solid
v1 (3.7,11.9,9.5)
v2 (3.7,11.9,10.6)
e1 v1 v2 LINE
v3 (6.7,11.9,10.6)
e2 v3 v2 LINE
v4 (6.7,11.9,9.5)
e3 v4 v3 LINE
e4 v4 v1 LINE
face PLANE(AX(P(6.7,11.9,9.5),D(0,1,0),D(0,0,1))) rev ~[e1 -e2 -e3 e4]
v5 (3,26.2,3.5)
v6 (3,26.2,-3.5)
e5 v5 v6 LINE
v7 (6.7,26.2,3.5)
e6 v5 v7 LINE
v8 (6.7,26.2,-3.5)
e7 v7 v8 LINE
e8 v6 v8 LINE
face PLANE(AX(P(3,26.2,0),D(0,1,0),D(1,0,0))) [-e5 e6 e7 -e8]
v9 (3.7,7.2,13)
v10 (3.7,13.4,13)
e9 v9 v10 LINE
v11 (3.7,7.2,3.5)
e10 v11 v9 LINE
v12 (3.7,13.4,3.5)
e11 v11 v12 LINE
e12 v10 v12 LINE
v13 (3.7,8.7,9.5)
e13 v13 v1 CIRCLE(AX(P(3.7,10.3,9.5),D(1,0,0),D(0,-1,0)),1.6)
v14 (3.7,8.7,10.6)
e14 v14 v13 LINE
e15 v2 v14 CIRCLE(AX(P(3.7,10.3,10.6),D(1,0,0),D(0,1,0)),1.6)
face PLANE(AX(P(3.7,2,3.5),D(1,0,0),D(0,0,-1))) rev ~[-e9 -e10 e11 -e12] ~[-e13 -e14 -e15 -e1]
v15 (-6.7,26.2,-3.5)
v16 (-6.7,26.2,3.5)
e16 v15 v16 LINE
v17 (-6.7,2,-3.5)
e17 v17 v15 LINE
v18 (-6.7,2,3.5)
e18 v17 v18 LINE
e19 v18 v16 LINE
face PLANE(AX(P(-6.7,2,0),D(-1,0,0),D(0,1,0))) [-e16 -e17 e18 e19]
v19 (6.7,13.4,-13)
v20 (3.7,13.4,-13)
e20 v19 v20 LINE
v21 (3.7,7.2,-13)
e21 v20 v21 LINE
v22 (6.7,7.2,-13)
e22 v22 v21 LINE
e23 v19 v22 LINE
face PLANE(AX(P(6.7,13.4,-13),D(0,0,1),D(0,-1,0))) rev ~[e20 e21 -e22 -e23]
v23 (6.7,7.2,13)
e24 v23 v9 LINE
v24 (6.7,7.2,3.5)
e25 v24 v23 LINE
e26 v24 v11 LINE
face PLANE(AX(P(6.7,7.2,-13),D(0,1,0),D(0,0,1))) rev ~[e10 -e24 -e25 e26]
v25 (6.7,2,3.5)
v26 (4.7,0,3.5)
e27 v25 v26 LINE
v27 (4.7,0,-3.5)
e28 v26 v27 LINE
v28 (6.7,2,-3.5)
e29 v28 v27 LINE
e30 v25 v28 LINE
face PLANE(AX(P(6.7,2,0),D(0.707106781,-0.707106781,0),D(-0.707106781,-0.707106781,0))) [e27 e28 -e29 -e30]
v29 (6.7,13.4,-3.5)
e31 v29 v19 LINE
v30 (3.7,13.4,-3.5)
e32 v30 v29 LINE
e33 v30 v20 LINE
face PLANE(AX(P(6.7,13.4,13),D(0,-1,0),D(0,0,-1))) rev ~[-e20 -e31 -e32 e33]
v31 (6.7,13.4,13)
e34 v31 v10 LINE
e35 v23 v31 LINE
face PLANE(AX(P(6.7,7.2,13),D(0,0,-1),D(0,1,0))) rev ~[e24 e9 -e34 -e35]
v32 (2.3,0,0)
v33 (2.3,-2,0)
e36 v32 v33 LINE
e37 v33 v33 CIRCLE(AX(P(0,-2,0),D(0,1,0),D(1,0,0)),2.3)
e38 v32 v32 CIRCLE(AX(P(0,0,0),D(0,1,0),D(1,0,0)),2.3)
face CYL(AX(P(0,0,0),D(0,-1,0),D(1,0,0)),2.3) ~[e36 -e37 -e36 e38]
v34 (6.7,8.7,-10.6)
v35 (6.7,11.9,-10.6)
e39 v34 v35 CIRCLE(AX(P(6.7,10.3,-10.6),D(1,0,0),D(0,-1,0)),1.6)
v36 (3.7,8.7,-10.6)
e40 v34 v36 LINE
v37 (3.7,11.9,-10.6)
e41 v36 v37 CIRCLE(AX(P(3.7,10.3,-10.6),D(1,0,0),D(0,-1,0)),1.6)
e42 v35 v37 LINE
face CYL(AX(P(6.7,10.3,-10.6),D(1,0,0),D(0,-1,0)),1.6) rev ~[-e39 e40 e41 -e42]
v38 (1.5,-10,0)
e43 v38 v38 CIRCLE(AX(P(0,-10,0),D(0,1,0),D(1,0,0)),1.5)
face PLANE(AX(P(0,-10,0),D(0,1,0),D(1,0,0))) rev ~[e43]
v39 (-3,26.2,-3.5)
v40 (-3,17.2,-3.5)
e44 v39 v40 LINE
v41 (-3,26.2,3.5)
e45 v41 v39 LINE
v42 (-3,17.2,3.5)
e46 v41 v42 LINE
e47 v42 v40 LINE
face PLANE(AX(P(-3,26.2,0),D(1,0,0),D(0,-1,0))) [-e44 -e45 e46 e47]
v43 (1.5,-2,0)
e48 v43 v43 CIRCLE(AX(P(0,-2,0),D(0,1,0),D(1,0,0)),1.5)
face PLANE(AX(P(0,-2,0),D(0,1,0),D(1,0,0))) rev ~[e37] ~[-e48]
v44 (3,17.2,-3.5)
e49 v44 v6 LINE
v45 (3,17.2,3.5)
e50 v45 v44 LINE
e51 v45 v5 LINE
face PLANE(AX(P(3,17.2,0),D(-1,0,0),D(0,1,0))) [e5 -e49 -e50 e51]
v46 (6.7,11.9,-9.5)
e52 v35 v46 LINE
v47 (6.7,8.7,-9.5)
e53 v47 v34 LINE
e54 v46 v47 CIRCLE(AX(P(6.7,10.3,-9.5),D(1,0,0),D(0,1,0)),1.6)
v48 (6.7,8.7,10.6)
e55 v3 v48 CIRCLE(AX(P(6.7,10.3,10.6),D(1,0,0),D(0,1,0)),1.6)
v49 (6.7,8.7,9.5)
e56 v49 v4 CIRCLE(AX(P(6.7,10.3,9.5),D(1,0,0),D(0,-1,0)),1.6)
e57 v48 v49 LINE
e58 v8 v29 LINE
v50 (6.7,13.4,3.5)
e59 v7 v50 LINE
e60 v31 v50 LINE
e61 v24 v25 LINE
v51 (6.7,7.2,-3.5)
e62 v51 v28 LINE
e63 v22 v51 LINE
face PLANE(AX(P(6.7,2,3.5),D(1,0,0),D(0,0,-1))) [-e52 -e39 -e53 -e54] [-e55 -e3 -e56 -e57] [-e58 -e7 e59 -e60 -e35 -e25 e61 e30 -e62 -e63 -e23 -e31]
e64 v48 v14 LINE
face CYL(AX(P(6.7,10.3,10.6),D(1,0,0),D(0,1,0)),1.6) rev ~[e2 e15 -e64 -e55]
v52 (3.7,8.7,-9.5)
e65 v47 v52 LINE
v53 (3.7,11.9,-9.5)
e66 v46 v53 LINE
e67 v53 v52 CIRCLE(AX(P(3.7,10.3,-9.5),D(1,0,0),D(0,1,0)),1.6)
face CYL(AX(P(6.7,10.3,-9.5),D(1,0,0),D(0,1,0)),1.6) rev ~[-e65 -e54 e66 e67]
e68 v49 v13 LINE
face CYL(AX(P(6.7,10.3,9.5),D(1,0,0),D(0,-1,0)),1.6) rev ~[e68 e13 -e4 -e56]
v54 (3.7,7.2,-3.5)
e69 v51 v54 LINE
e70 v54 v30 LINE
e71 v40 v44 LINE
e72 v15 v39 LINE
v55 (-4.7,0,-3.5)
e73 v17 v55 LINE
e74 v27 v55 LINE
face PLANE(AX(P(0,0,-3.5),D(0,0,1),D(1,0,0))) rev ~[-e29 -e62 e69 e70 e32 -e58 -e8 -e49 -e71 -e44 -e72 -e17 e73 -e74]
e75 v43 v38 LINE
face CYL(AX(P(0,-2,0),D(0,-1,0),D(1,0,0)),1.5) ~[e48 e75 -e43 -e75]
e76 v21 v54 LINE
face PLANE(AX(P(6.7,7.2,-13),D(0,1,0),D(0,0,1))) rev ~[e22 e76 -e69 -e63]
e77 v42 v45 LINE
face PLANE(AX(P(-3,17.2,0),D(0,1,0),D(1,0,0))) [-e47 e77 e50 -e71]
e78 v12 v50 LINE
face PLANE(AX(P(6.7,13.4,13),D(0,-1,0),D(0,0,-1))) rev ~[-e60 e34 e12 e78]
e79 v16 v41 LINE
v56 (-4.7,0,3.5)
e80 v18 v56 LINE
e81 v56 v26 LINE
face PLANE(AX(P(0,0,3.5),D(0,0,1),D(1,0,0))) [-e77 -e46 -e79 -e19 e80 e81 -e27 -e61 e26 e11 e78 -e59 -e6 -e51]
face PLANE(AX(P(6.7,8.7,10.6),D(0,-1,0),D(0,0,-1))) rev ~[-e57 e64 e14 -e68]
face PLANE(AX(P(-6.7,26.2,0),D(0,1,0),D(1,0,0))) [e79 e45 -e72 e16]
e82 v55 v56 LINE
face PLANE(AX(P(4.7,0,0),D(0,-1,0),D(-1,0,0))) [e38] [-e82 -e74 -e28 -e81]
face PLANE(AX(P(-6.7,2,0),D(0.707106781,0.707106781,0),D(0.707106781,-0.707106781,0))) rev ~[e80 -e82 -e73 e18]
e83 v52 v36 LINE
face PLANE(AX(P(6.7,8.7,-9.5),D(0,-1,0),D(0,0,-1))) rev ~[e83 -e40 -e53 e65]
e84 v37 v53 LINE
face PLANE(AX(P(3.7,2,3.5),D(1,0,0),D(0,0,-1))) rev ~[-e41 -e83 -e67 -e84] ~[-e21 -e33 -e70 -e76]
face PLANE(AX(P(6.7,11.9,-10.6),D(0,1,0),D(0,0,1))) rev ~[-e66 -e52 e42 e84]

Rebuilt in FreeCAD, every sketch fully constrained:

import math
import FreeCAD as App
import Part
import Sketcher

doc = App.newDocument("Part")
body = doc.addObject("PartDesign::Body", "Body")

sketch1 = doc.addObject("Sketcher::SketchObject", "Sketch")
body.addObject(sketch1)
sketch1.AttachmentSupport = (doc.XY_Plane, [""])
sketch1.MapMode = "FlatFace"
sketch1.addGeometry(Part.LineSegment(App.Vector(-3, 26.2, 0), App.Vector(-6.7, 26.2, 0)), False)
sketch1.addGeometry(Part.LineSegment(App.Vector(-6.7, 26.2, 0), App.Vector(-6.7, 2, 0)), False)
sketch1.addGeometry(Part.LineSegment(App.Vector(-6.7, 2, 0), App.Vector(-4.7, 0, 0)), False)
sketch1.addGeometry(Part.LineSegment(App.Vector(-4.7, 0, 0), App.Vector(4.7, 0, 0)), False)
sketch1.addGeometry(Part.LineSegment(App.Vector(4.7, 0, 0), App.Vector(6.7, 2, 0)), False)
sketch1.addGeometry(Part.LineSegment(App.Vector(6.7, 2, 0), App.Vector(6.7, 26.2, 0)), False)
sketch1.addGeometry(Part.LineSegment(App.Vector(6.7, 26.2, 0), App.Vector(3, 26.2, 0)), False)
sketch1.addGeometry(Part.LineSegment(App.Vector(3, 26.2, 0), App.Vector(3, 17.2, 0)), False)
sketch1.addGeometry(Part.LineSegment(App.Vector(3, 17.2, 0), App.Vector(-3, 17.2, 0)), False)
sketch1.addGeometry(Part.LineSegment(App.Vector(-3, 17.2, 0), App.Vector(-3, 26.2, 0)), False)
sketch1.addConstraint(Sketcher.Constraint("Coincident", 0, 2, 1, 1))
sketch1.addConstraint(Sketcher.Constraint("Coincident", 1, 2, 2, 1))
sketch1.addConstraint(Sketcher.Constraint("Coincident", 2, 2, 3, 1))
sketch1.addConstraint(Sketcher.Constraint("Coincident", 3, 2, 4, 1))
sketch1.addConstraint(Sketcher.Constraint("Coincident", 4, 2, 5, 1))
sketch1.addConstraint(Sketcher.Constraint("Coincident", 5, 2, 6, 1))
sketch1.addConstraint(Sketcher.Constraint("Coincident", 6, 2, 7, 1))
sketch1.addConstraint(Sketcher.Constraint("Coincident", 7, 2, 8, 1))
sketch1.addConstraint(Sketcher.Constraint("Coincident", 8, 2, 9, 1))
sketch1.addConstraint(Sketcher.Constraint("Coincident", 9, 2, 0, 1))
sketch1.addConstraint(Sketcher.Constraint("Horizontal", 0))
sketch1.addConstraint(Sketcher.Constraint("Vertical", 1))
sketch1.addConstraint(Sketcher.Constraint("Horizontal", 3))
sketch1.addConstraint(Sketcher.Constraint("Vertical", 5))
sketch1.addConstraint(Sketcher.Constraint("Horizontal", 6))
sketch1.addConstraint(Sketcher.Constraint("Vertical", 7))
sketch1.addConstraint(Sketcher.Constraint("Horizontal", 8))
sketch1.addConstraint(Sketcher.Constraint("Vertical", 9))
sketch1.addConstraint(Sketcher.Constraint("Symmetric", 2, 2, 3, 2, -1, 1))
sketch1.addConstraint(Sketcher.Constraint("Symmetric", 1, 2, 4, 2, -2))
sketch1.addConstraint(Sketcher.Constraint("Symmetric", 6, 2, 9, 2, -2))
sketch1.addConstraint(Sketcher.Constraint("Perpendicular", 2, 4))
sketch1.addConstraint(Sketcher.Constraint("DistanceX", 8, 2, 8, 1, 6.0))
sketch1.addConstraint(Sketcher.Constraint("DistanceY", 7, 2, 7, 1, 9.0))
sketch1.addConstraint(Sketcher.Constraint("DistanceY", -1, 1, 1, 2, 2.0))
sketch1.addConstraint(Sketcher.Constraint("DistanceY", -1, 1, 0, 2, 26.2))
sketch1.addConstraint(Sketcher.Constraint("DistanceX", 1, 2, 4, 2, 13.4))
pad1 = doc.addObject("PartDesign::Pad", "Pad")
body.addObject(pad1)
pad1.Profile = sketch1
pad1.Length = 7
pad1.Midplane = True

sketch2 = doc.addObject("Sketcher::SketchObject", "Sketch001")
body.addObject(sketch2)
sketch2.AttachmentSupport = (doc.XY_Plane, [""])
sketch2.MapMode = "FlatFace"
sketch2.addGeometry(Part.LineSegment(App.Vector(2.3, 0, 0), App.Vector(0, 0, 0)), False)
sketch2.addGeometry(Part.LineSegment(App.Vector(0, 0, 0), App.Vector(0, -10, 0)), False)
sketch2.addGeometry(Part.LineSegment(App.Vector(0, -10, 0), App.Vector(1.5, -10, 0)), False)
sketch2.addGeometry(Part.LineSegment(App.Vector(1.5, -10, 0), App.Vector(1.5, -2, 0)), False)
sketch2.addGeometry(Part.LineSegment(App.Vector(1.5, -2, 0), App.Vector(2.3, -2, 0)), False)
sketch2.addGeometry(Part.LineSegment(App.Vector(2.3, -2, 0), App.Vector(2.3, 0, 0)), False)
sketch2.addConstraint(Sketcher.Constraint("Coincident", 0, 2, 1, 1))
sketch2.addConstraint(Sketcher.Constraint("Coincident", 1, 2, 2, 1))
sketch2.addConstraint(Sketcher.Constraint("Coincident", 2, 2, 3, 1))
sketch2.addConstraint(Sketcher.Constraint("Coincident", 3, 2, 4, 1))
sketch2.addConstraint(Sketcher.Constraint("Coincident", 4, 2, 5, 1))
sketch2.addConstraint(Sketcher.Constraint("Coincident", 5, 2, 0, 1))
sketch2.addConstraint(Sketcher.Constraint("Horizontal", 0))
sketch2.addConstraint(Sketcher.Constraint("Vertical", 1))
sketch2.addConstraint(Sketcher.Constraint("Horizontal", 2))
sketch2.addConstraint(Sketcher.Constraint("Vertical", 3))
sketch2.addConstraint(Sketcher.Constraint("Horizontal", 4))
sketch2.addConstraint(Sketcher.Constraint("Vertical", 5))
sketch2.addConstraint(Sketcher.Constraint("Coincident", 0, 2, -1, 1))
sketch2.addConstraint(Sketcher.Constraint("DistanceY", 1, 2, 1, 1, 10.0))
sketch2.addConstraint(Sketcher.Constraint("DistanceY", 5, 1, 5, 2, 2.0))
sketch2.addConstraint(Sketcher.Constraint("DistanceX", 0, 2, 0, 1, 2.3))
sketch2.addConstraint(Sketcher.Constraint("DistanceX", 2, 1, 2, 2, 1.5))
revolution = doc.addObject("PartDesign::Revolution", "Revolution")
body.addObject(revolution)
revolution.Profile = sketch2
revolution.ReferenceAxis = (sketch2, ["V_Axis"])
revolution.Angle = 360

sketch3 = doc.addObject("Sketcher::SketchObject", "Sketch002")
body.addObject(sketch3)
sketch3.AttachmentSupport = (doc.YZ_Plane, [""])
sketch3.MapMode = "FlatFace"
sketch3.AttachmentOffset = App.Placement(App.Vector(0, 0, 6.7), App.Rotation())
sketch3.addGeometry(Part.LineSegment(App.Vector(13.4, -13, 0), App.Vector(13.4, 13, 0)), False)
sketch3.addGeometry(Part.LineSegment(App.Vector(13.4, 13, 0), App.Vector(7.2, 13, 0)), False)
sketch3.addGeometry(Part.LineSegment(App.Vector(7.2, 13, 0), App.Vector(7.2, -13, 0)), False)
sketch3.addGeometry(Part.LineSegment(App.Vector(7.2, -13, 0), App.Vector(13.4, -13, 0)), False)
sketch3.addGeometry(Part.LineSegment(App.Vector(8.7, 9.5, 0), App.Vector(8.7, 10.6, 0)), False)
sketch3.addGeometry(Part.ArcOfCircle(Part.Circle(App.Vector(10.3, 10.6, 0), App.Vector(0, 0, 1), 1.6), math.radians(0), math.radians(180)), False)
sketch3.addGeometry(Part.LineSegment(App.Vector(11.9, 10.6, 0), App.Vector(11.9, 9.5, 0)), False)
sketch3.addGeometry(Part.ArcOfCircle(Part.Circle(App.Vector(10.3, 9.5, 0), App.Vector(0, 0, 1), 1.6), math.radians(180), math.radians(360)), False)
sketch3.addGeometry(Part.LineSegment(App.Vector(8.7, -10.6, 0), App.Vector(8.7, -9.5, 0)), False)
sketch3.addGeometry(Part.ArcOfCircle(Part.Circle(App.Vector(10.3, -9.5, 0), App.Vector(0, 0, 1), 1.6), math.radians(0), math.radians(180)), False)
sketch3.addGeometry(Part.LineSegment(App.Vector(11.9, -9.5, 0), App.Vector(11.9, -10.6, 0)), False)
sketch3.addGeometry(Part.ArcOfCircle(Part.Circle(App.Vector(10.3, -10.6, 0), App.Vector(0, 0, 1), 1.6), math.radians(180), math.radians(360)), False)
sketch3.addConstraint(Sketcher.Constraint("Coincident", 0, 2, 1, 1))
sketch3.addConstraint(Sketcher.Constraint("Coincident", 1, 2, 2, 1))
sketch3.addConstraint(Sketcher.Constraint("Coincident", 2, 2, 3, 1))
sketch3.addConstraint(Sketcher.Constraint("Coincident", 3, 2, 0, 1))
sketch3.addConstraint(Sketcher.Constraint("Tangent", 4, 2, 5, 2))
sketch3.addConstraint(Sketcher.Constraint("Tangent", 5, 1, 6, 1))
sketch3.addConstraint(Sketcher.Constraint("Tangent", 6, 2, 7, 2))
sketch3.addConstraint(Sketcher.Constraint("Tangent", 7, 1, 4, 1))
sketch3.addConstraint(Sketcher.Constraint("Tangent", 8, 2, 9, 2))
sketch3.addConstraint(Sketcher.Constraint("Tangent", 9, 1, 10, 1))
sketch3.addConstraint(Sketcher.Constraint("Tangent", 10, 2, 11, 2))
sketch3.addConstraint(Sketcher.Constraint("Tangent", 11, 1, 8, 1))
sketch3.addConstraint(Sketcher.Constraint("Vertical", 0))
sketch3.addConstraint(Sketcher.Constraint("Horizontal", 1))
sketch3.addConstraint(Sketcher.Constraint("Vertical", 2))
sketch3.addConstraint(Sketcher.Constraint("Horizontal", 3))
sketch3.addConstraint(Sketcher.Constraint("Vertical", 4))
sketch3.addConstraint(Sketcher.Constraint("Vertical", 6))
sketch3.addConstraint(Sketcher.Constraint("Vertical", 8))
sketch3.addConstraint(Sketcher.Constraint("Vertical", 10))
sketch3.addConstraint(Sketcher.Constraint("Equal", 7, 9))
sketch3.addConstraint(Sketcher.Constraint("Symmetric", 7, 3, 9, 3, -1))
sketch3.addConstraint(Sketcher.Constraint("Equal", 6, 8))
sketch3.addConstraint(Sketcher.Constraint("DistanceY", 0, 1, 0, 2, 26.0))
sketch3.addConstraint(Sketcher.Constraint("DistanceX", 1, 2, 1, 1, 6.2))
sketch3.addConstraint(Sketcher.Constraint("DistanceY", 4, 1, 4, 2, 1.1))
sketch3.addConstraint(Sketcher.Constraint("DistanceY", 9, 3, 7, 3, 19.0))
sketch3.addConstraint(Sketcher.Constraint("DistanceX", -1, 1, 5, 3, 10.3))
sketch3.addConstraint(Sketcher.Constraint("Radius", 5, 1.6))
sketch3.addConstraint(Sketcher.Constraint("DistanceY", -1, 1, 0, 2, 13.0))
sketch3.addConstraint(Sketcher.Constraint("DistanceX", -1, 1, 0, 2, 13.4))
pad2 = doc.addObject("PartDesign::Pad", "Pad001")
body.addObject(pad2)
pad2.Profile = sketch3
pad2.Length = 3
pad2.Reversed = True

doc.recompute()
